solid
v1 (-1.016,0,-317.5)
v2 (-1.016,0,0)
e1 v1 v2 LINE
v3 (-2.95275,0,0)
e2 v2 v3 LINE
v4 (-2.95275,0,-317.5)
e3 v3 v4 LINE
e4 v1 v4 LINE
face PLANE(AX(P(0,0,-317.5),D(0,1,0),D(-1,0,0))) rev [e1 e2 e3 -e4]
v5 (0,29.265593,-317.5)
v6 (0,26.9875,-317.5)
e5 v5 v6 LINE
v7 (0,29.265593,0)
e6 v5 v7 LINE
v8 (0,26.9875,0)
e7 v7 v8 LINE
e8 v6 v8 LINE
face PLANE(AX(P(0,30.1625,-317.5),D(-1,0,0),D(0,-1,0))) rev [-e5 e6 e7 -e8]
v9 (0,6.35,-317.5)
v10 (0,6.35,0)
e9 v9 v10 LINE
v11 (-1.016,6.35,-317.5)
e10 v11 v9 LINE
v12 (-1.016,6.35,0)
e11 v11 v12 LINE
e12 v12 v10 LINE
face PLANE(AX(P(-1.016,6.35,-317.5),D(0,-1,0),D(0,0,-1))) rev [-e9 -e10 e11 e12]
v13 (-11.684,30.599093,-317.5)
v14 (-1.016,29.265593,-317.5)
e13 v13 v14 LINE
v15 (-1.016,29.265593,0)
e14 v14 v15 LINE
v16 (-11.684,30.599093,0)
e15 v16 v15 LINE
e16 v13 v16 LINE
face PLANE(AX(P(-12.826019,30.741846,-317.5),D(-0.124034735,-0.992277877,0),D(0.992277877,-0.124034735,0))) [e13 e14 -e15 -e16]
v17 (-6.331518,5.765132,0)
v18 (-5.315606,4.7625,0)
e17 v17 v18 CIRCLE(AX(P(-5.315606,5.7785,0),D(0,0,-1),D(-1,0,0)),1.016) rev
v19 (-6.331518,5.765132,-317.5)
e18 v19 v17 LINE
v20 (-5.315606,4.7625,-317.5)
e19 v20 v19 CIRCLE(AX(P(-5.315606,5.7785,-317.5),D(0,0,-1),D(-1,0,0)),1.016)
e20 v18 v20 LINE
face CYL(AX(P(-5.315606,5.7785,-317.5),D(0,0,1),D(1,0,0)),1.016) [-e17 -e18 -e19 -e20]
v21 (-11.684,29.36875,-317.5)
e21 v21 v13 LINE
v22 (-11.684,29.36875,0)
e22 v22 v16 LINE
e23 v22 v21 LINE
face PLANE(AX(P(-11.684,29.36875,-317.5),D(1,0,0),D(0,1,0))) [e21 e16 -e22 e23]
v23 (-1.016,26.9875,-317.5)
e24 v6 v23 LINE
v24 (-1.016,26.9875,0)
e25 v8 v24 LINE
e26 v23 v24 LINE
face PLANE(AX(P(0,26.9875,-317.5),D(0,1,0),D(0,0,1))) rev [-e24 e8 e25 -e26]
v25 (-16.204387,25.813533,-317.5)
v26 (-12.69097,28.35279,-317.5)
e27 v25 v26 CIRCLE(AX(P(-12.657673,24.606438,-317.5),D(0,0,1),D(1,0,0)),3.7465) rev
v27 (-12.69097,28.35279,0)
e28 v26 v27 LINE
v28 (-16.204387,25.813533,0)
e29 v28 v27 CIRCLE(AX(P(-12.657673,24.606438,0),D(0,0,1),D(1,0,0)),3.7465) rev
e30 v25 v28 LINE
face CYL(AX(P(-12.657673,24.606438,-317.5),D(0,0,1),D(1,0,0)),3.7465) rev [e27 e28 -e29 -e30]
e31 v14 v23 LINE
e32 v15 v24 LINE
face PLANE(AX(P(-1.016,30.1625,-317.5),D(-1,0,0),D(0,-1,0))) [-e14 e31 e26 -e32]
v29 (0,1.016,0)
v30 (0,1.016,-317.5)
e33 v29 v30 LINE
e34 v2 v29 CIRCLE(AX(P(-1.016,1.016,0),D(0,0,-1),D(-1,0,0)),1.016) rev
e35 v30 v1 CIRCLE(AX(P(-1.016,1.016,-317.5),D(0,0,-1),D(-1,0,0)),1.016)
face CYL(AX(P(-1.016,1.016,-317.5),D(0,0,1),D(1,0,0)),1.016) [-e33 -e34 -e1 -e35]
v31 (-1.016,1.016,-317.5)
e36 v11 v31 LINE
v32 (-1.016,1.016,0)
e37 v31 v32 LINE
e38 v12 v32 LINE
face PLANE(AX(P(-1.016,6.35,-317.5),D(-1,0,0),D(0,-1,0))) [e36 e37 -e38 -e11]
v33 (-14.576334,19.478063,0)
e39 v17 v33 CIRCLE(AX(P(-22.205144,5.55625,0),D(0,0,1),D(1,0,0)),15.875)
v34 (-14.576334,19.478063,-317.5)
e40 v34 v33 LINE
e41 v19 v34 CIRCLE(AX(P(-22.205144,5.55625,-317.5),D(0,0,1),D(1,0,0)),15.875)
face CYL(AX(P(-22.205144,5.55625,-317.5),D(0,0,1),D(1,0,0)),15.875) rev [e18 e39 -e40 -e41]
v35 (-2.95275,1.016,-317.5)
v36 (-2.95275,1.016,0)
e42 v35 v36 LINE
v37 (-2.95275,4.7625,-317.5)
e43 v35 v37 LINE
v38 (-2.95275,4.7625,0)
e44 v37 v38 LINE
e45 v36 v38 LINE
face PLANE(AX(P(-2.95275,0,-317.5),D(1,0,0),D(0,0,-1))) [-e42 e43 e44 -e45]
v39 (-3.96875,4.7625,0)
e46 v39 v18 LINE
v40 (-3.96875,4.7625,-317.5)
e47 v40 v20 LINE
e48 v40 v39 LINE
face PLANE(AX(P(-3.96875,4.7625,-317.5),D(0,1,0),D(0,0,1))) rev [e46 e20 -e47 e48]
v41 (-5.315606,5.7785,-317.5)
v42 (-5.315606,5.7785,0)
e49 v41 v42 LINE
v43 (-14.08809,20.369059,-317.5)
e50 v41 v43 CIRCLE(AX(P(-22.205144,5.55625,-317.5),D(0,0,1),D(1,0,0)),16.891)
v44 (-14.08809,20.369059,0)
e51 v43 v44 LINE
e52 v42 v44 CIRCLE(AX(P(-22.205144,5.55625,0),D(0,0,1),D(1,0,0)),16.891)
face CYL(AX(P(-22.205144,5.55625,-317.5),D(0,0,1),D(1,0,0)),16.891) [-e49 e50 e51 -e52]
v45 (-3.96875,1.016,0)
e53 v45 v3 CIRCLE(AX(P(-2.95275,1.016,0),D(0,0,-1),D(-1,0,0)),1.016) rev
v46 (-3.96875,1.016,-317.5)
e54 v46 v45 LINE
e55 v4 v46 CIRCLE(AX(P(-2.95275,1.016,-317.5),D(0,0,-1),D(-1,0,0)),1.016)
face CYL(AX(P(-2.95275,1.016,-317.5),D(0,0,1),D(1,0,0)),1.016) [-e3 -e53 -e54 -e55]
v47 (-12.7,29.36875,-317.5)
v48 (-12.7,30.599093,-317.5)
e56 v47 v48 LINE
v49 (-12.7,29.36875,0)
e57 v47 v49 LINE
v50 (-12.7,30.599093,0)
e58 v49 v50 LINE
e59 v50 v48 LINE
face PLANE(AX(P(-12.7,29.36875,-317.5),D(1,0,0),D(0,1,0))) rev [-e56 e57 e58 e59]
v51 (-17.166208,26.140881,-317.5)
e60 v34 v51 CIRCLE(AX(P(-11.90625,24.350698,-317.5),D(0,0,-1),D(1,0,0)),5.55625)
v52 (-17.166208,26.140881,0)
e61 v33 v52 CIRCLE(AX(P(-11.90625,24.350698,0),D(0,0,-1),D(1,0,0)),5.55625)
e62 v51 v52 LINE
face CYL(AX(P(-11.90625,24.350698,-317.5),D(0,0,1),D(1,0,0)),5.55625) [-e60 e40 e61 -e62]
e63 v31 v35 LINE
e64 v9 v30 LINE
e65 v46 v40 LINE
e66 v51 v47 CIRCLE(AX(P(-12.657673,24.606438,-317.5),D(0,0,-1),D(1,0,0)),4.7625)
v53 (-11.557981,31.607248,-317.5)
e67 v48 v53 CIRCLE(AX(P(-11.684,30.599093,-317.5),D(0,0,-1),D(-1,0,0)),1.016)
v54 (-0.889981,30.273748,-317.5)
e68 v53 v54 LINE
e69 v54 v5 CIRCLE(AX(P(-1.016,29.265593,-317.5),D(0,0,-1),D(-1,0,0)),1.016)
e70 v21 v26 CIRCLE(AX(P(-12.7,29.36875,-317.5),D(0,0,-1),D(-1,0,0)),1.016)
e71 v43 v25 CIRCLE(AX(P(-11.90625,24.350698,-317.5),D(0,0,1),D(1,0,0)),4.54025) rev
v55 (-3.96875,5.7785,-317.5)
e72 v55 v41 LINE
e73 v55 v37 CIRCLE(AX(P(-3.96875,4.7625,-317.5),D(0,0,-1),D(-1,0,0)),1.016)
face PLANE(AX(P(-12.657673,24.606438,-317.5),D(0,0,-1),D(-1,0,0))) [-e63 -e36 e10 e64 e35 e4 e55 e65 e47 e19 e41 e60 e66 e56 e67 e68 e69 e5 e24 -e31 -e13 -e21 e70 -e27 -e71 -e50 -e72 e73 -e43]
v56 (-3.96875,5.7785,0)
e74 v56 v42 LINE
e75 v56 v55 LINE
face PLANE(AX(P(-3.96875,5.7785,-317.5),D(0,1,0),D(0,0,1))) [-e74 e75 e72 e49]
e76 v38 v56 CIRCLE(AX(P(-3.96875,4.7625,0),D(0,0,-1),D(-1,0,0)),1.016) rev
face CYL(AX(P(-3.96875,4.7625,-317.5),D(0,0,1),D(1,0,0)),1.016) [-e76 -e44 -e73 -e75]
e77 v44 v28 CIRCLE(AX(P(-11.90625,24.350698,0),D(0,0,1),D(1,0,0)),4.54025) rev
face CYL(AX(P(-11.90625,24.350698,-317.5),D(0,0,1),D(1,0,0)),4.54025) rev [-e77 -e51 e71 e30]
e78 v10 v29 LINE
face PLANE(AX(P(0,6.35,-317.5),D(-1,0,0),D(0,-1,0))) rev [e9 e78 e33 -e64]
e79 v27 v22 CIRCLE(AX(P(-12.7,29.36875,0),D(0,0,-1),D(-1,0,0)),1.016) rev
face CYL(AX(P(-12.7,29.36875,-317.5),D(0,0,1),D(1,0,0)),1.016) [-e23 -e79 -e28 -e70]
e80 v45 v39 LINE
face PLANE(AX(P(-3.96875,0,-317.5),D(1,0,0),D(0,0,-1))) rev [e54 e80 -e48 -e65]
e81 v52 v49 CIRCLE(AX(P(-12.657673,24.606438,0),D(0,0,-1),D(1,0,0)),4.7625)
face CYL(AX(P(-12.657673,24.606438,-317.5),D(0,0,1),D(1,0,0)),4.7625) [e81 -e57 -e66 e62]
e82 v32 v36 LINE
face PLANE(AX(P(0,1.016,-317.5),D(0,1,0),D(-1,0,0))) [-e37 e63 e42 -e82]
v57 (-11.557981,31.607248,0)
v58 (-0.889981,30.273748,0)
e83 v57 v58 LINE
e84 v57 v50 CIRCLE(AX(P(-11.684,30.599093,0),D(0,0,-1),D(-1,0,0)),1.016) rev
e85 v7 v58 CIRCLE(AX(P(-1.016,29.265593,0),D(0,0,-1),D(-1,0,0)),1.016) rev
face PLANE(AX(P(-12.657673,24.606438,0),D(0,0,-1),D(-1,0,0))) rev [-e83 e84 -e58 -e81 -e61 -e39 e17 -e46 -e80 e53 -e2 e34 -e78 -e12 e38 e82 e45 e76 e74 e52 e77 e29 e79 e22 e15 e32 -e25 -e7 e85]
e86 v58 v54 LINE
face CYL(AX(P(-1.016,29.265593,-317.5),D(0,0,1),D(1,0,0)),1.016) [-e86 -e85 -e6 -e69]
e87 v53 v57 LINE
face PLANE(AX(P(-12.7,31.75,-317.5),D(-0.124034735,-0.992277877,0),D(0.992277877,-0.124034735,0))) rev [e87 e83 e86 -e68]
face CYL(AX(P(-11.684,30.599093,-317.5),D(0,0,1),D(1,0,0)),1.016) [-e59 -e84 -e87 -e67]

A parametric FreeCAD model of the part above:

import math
import FreeCAD as App
import Part
import Sketcher
Q = App.Units.Quantity


def edges_at(feature, points):
    """Names of the edges that pass closest to the given points."""
    edges = feature.Shape.Edges
    near = lambda p: min(range(len(edges)), key=lambda i: edges[i].distToShape(Part.Vertex(*p))[0])
    return sorted({f"Edge{near(p) + 1}" for p in points})

doc = App.newDocument("Part")
params = doc.addObject("Spreadsheet::Sheet", "Params")
for row, (alias, value) in enumerate([
    ("sketch1_radius", "0.665 in"),
    ("sketch1_radius2", "0.1875 in"),
    ("sketch1_radius3", "0.21875 in"),
    ("sketch1_radius4", "0.625 in"),
    ("sketch1_width", "0.04 in"),
    ("pad1_length", "12.5 in"),
    ("fillet_radius", "0.04 in"),
], start=1):
    params.set(f"A{row}", alias)
    params.set(f"B{row}", "=" + value)
    params.setAlias(f"B{row}", alias)

body = doc.addObject("PartDesign::Body", "Body")

# Sketch on XY plane
sketch1 = body.newObject("Sketcher::SketchObject", "Sketch")
sketch1.AttachmentSupport = (doc.getObject("XY_Plane"), [""])
sketch1.MapMode = "FlatFace"
sketch1.addGeometry(Part.LineSegment(App.Vector(0, 0, 0), App.Vector(0, 6.3, 0)), False)
sketch1.addGeometry(Part.LineSegment(App.Vector(0, 6.3, 0), App.Vector(-1, 6.3, 0)), False)
sketch1.addGeometry(Part.LineSegment(App.Vector(-1, 6.3, 0), App.Vector(-1, 1, 0)), False)
sketch1.addGeometry(Part.LineSegment(App.Vector(-1, 1, 0), App.Vector(-3, 1, 0)), False)
sketch1.addGeometry(Part.LineSegment(App.Vector(-3, 1, 0), App.Vector(-3, 5.8, 0)), False)
sketch1.addGeometry(Part.LineSegment(App.Vector(-3, 5.8, 0), App.Vector(-5.3, 5.8, 0)), False)
sketch1.addGeometry(Part.ArcOfCircle(Part.Circle(App.Vector(-22.2, 5.6, 0), App.Vector(0, 0, 1), 16.9), math.radians(1), math.radians(61)), False)
sketch1.addGeometry(Part.ArcOfCircle(Part.Circle(App.Vector(-11.9, 24.4, 0), App.Vector(0, 0, 1), 4.5), math.radians(161), math.radians(241)), False)
sketch1.addGeometry(Part.ArcOfCircle(Part.Circle(App.Vector(-12.7, 24.6, 0), App.Vector(0, 0, 1), 3.7), math.radians(75), math.radians(161)), False)
sketch1.addGeometry(Part.LineSegment(App.Vector(-11.7, 28.2, 0), App.Vector(-11.7, 30.6, 0)), False)
sketch1.addGeometry(Part.LineSegment(App.Vector(-11.7, 30.6, 0), App.Vector(-1, 29.3, 0)), False)
sketch1.addGeometry(Part.LineSegment(App.Vector(-1, 29.3, 0), App.Vector(-1, 27, 0)), False)
sketch1.addGeometry(Part.LineSegment(App.Vector(-1, 27, 0), App.Vector(0, 27, 0)), False)
sketch1.addGeometry(Part.LineSegment(App.Vector(0, 27, 0), App.Vector(0, 30.2, 0)), False)
sketch1.addGeometry(Part.LineSegment(App.Vector(0, 30.2, 0), App.Vector(-12.7, 31.8, 0)), False)
sketch1.addGeometry(Part.LineSegment(App.Vector(-12.7, 31.8, 0), App.Vector(-12.7, 29.4, 0)), False)
sketch1.addGeometry(Part.ArcOfCircle(Part.Circle(App.Vector(-12.7, 24.6, 0), App.Vector(0, 0, 1), 4.8), math.radians(91), math.radians(161)), False)
sketch1.addGeometry(Part.ArcOfCircle(Part.Circle(App.Vector(-11.9, 24.4, 0), App.Vector(0, 0, 1), 5.6), math.radians(161), math.radians(241)), False)
sketch1.addGeometry(Part.ArcOfCircle(Part.Circle(App.Vector(-22.2, 5.6, 0), App.Vector(0, 0, 1), 15.9), math.radians(-3), math.radians(61)), False)
sketch1.addGeometry(Part.LineSegment(App.Vector(-6.3, 4.8, 0), App.Vector(-4, 4.8, 0)), False)
sketch1.addGeometry(Part.LineSegment(App.Vector(-4, 4.8, 0), App.Vector(-4, 0, 0)), False)
sketch1.addGeometry(Part.LineSegment(App.Vector(-4, 0, 0), App.Vector(0, 0, 0)), False)
sketch1.addConstraint(Sketcher.Constraint("Coincident", 0, 2, 1, 1))
sketch1.addConstraint(Sketcher.Constraint("Coincident", 1, 2, 2, 1))
sketch1.addConstraint(Sketcher.Constraint("Coincident", 2, 2, 3, 1))
sketch1.addConstraint(Sketcher.Constraint("Coincident", 3, 2, 4, 1))
sketch1.addConstraint(Sketcher.Constraint("Coincident", 4, 2, 5, 1))
sketch1.addConstraint(Sketcher.Constraint("Coincident", 5, 2, 6, 1))
sketch1.addConstraint(Sketcher.Constraint("Tangent", 6, 2, 7, 2))
sketch1.addConstraint(Sketcher.Constraint("Tangent", 7, 1, 8, 2))
sketch1.addConstraint(Sketcher.Constraint("Coincident", 8, 1, 9, 1))
sketch1.addConstraint(Sketcher.Constraint("Coincident", 9, 2, 10, 1))
sketch1.addConstraint(Sketcher.Constraint("Coincident", 10, 2, 11, 1))
sketch1.addConstraint(Sketcher.Constraint("Coincident", 11, 2, 12, 1))
sketch1.addConstraint(Sketcher.Constraint("Coincident", 12, 2, 13, 1))
sketch1.addConstraint(Sketcher.Constraint("Coincident", 13, 2, 14, 1))
sketch1.addConstraint(Sketcher.Constraint("Coincident", 14, 2, 15, 1))
sketch1.addConstraint(Sketcher.Constraint("Coincident", 15, 2, 16, 1))
sketch1.addConstraint(Sketcher.Constraint("Tangent", 16, 2, 17, 1))
sketch1.addConstraint(Sketcher.Constraint("Tangent", 17, 2, 18, 2))
sketch1.addConstraint(Sketcher.Constraint("Coincident", 18, 1, 19, 1))
sketch1.addConstraint(Sketcher.Constraint("Coincident", 19, 2, 20, 1))
sketch1.addConstraint(Sketcher.Constraint("Coincident", 20, 2, 21, 1))
sketch1.addConstraint(Sketcher.Constraint("Coincident", 21, 2, 0, 1))
sketch1.addConstraint(Sketcher.Constraint("Vertical", 0))
sketch1.addConstraint(Sketcher.Constraint("Horizontal", 1))
sketch1.addConstraint(Sketcher.Constraint("Vertical", 2))
sketch1.addConstraint(Sketcher.Constraint("Horizontal", 3))
sketch1.addConstraint(Sketcher.Constraint("Vertical", 4))
sketch1.addConstraint(Sketcher.Constraint("Horizontal", 5))
sketch1.addConstraint(Sketcher.Constraint("Vertical", 9))
sketch1.addConstraint(Sketcher.Constraint("Vertical", 11))
sketch1.addConstraint(Sketcher.Constraint("Horizontal", 12))
sketch1.addConstraint(Sketcher.Constraint("Vertical", 13))
sketch1.addConstraint(Sketcher.Constraint("Vertical", 15))
sketch1.addConstraint(Sketcher.Constraint("Horizontal", 19))
sketch1.addConstraint(Sketcher.Constraint("Vertical", 20))
sketch1.addConstraint(Sketcher.Constraint("Horizontal", 21))
sketch1.addConstraint(Sketcher.Constraint("Coincident", 21, 2, -1, 1))
sketch1.addConstraint(Sketcher.Constraint("Coincident", 16, 3, 8, 3))
sketch1.addConstraint(Sketcher.Constraint("Coincident", 17, 3, 7, 3))
sketch1.addConstraint(Sketcher.Constraint("Coincident", 18, 3, 6, 3))
sketch1.addConstraint(Sketcher.Constraint("PointOnObject", 12, 2, -2))
sketch1.addConstraint(Sketcher.Constraint("Parallel", 10, 14))
sketch1.addConstraint(Sketcher.Constraint("Vertical", 2, 2, 10, 2))
sketch1.addConstraint(Sketcher.Constraint("Equal", 19, 15))
sketch1.addConstraint(Sketcher.Constraint("Equal", 4, 20))
sketch1.addConstraint(Sketcher.Constraint("Radius", 6, Q("0.665 in")))
sketch1.addConstraint(Sketcher.Constraint("Radius", 16, Q("0.1875 in")))
sketch1.addConstraint(Sketcher.Constraint("Radius", 17, Q("0.21875 in")))
sketch1.addConstraint(Sketcher.Constraint("Radius", 18, Q("0.625 in")))
sketch1.addConstraint(Sketcher.Constraint("DistanceX", 1, 2, 1, 1, Q("0.04 in")))
sketch1.addConstraint(Sketcher.Constraint("DistanceY", 0, 1, 0, 2, Q("0.25 in")))
sketch1.addConstraint(Sketcher.Constraint("DistanceY", 2, 2, 2, 1, Q("0.21 in")))
sketch1.addConstraint(Sketcher.Constraint("DistanceX", 14, 2, -1, 1, Q("0.5 in")))
sketch1.addConstraint(Sketcher.Constraint("DistanceX", 19, 1, 19, 2, Q("0.09375 in")))
sketch1.addConstraint(Sketcher.Constraint("DistanceX", 21, 1, 21, 2, Q("0.15625 in")))
sketch1.addConstraint(Sketcher.Constraint("DistanceY", 4, 1, 4, 2, Q("0.1875 in")))
sketch1.addConstraint(Sketcher.Constraint("DistanceY", 13, 1, 13, 2, Q("0.125 in")))
sketch1.addConstraint(Sketcher.Constraint("DistanceX", 8, 1, -1, 1, Q("0.46 in")))
sketch1.addConstraint(Sketcher.Constraint("DistanceY", -1, 1, 14, 2, Q("1.25 in")))
sketch1.addConstraint(Sketcher.Constraint("DistanceX", 19, 2, 4, 2, Q("0.04 in")))
sketch1.addConstraint(Sketcher.Constraint("DistanceY", -1, 1, 6, 3, Q("0.21875 in")))
sketch1.addConstraint(Sketcher.Constraint("DistanceX", 7, 3, -1, 1, Q("0.46875 in")))
sketch1.addConstraint(Sketcher.Constraint("DistanceY", -1, 1, 11, 2, Q("1.0625 in")))
sketch1.addConstraint(Sketcher.Constraint("DistanceY", 7, 3, 9, 2, Q("0.2459998 in")))
sketch1.setExpression("Constraints[45]", "Params.sketch1_radius")
sketch1.setExpression("Constraints[46]", "Params.sketch1_radius2")
sketch1.setExpression("Constraints[47]", "Params.sketch1_radius3")
sketch1.setExpression("Constraints[48]", "Params.sketch1_radius4")
sketch1.setExpression("Constraints[49]", "Params.sketch1_width")
pad1 = body.newObject("PartDesign::Pad", "Pad")
pad1.Profile = sketch1
pad1.setExpression("Length", "Params.pad1_length")
pad1.Reversed = True
doc.recompute()

fillet = body.newObject("PartDesign::Fillet", "Fillet")
fillet.Base = (pad1, edges_at(pad1, [
    (-11.684, 28.224, -158.75),
    (-2.953, 5.779, -158.75),
    (0, 0, -158.75),
    (-3.969, 0, -158.75),
    (-6.35, 4.763, -158.75),
    (-12.7, 31.75, -158.75),
    (0, 30.163, -158.75),
]))
fillet.setExpression("Radius", "Params.fillet_radius")

doc.recompute()
